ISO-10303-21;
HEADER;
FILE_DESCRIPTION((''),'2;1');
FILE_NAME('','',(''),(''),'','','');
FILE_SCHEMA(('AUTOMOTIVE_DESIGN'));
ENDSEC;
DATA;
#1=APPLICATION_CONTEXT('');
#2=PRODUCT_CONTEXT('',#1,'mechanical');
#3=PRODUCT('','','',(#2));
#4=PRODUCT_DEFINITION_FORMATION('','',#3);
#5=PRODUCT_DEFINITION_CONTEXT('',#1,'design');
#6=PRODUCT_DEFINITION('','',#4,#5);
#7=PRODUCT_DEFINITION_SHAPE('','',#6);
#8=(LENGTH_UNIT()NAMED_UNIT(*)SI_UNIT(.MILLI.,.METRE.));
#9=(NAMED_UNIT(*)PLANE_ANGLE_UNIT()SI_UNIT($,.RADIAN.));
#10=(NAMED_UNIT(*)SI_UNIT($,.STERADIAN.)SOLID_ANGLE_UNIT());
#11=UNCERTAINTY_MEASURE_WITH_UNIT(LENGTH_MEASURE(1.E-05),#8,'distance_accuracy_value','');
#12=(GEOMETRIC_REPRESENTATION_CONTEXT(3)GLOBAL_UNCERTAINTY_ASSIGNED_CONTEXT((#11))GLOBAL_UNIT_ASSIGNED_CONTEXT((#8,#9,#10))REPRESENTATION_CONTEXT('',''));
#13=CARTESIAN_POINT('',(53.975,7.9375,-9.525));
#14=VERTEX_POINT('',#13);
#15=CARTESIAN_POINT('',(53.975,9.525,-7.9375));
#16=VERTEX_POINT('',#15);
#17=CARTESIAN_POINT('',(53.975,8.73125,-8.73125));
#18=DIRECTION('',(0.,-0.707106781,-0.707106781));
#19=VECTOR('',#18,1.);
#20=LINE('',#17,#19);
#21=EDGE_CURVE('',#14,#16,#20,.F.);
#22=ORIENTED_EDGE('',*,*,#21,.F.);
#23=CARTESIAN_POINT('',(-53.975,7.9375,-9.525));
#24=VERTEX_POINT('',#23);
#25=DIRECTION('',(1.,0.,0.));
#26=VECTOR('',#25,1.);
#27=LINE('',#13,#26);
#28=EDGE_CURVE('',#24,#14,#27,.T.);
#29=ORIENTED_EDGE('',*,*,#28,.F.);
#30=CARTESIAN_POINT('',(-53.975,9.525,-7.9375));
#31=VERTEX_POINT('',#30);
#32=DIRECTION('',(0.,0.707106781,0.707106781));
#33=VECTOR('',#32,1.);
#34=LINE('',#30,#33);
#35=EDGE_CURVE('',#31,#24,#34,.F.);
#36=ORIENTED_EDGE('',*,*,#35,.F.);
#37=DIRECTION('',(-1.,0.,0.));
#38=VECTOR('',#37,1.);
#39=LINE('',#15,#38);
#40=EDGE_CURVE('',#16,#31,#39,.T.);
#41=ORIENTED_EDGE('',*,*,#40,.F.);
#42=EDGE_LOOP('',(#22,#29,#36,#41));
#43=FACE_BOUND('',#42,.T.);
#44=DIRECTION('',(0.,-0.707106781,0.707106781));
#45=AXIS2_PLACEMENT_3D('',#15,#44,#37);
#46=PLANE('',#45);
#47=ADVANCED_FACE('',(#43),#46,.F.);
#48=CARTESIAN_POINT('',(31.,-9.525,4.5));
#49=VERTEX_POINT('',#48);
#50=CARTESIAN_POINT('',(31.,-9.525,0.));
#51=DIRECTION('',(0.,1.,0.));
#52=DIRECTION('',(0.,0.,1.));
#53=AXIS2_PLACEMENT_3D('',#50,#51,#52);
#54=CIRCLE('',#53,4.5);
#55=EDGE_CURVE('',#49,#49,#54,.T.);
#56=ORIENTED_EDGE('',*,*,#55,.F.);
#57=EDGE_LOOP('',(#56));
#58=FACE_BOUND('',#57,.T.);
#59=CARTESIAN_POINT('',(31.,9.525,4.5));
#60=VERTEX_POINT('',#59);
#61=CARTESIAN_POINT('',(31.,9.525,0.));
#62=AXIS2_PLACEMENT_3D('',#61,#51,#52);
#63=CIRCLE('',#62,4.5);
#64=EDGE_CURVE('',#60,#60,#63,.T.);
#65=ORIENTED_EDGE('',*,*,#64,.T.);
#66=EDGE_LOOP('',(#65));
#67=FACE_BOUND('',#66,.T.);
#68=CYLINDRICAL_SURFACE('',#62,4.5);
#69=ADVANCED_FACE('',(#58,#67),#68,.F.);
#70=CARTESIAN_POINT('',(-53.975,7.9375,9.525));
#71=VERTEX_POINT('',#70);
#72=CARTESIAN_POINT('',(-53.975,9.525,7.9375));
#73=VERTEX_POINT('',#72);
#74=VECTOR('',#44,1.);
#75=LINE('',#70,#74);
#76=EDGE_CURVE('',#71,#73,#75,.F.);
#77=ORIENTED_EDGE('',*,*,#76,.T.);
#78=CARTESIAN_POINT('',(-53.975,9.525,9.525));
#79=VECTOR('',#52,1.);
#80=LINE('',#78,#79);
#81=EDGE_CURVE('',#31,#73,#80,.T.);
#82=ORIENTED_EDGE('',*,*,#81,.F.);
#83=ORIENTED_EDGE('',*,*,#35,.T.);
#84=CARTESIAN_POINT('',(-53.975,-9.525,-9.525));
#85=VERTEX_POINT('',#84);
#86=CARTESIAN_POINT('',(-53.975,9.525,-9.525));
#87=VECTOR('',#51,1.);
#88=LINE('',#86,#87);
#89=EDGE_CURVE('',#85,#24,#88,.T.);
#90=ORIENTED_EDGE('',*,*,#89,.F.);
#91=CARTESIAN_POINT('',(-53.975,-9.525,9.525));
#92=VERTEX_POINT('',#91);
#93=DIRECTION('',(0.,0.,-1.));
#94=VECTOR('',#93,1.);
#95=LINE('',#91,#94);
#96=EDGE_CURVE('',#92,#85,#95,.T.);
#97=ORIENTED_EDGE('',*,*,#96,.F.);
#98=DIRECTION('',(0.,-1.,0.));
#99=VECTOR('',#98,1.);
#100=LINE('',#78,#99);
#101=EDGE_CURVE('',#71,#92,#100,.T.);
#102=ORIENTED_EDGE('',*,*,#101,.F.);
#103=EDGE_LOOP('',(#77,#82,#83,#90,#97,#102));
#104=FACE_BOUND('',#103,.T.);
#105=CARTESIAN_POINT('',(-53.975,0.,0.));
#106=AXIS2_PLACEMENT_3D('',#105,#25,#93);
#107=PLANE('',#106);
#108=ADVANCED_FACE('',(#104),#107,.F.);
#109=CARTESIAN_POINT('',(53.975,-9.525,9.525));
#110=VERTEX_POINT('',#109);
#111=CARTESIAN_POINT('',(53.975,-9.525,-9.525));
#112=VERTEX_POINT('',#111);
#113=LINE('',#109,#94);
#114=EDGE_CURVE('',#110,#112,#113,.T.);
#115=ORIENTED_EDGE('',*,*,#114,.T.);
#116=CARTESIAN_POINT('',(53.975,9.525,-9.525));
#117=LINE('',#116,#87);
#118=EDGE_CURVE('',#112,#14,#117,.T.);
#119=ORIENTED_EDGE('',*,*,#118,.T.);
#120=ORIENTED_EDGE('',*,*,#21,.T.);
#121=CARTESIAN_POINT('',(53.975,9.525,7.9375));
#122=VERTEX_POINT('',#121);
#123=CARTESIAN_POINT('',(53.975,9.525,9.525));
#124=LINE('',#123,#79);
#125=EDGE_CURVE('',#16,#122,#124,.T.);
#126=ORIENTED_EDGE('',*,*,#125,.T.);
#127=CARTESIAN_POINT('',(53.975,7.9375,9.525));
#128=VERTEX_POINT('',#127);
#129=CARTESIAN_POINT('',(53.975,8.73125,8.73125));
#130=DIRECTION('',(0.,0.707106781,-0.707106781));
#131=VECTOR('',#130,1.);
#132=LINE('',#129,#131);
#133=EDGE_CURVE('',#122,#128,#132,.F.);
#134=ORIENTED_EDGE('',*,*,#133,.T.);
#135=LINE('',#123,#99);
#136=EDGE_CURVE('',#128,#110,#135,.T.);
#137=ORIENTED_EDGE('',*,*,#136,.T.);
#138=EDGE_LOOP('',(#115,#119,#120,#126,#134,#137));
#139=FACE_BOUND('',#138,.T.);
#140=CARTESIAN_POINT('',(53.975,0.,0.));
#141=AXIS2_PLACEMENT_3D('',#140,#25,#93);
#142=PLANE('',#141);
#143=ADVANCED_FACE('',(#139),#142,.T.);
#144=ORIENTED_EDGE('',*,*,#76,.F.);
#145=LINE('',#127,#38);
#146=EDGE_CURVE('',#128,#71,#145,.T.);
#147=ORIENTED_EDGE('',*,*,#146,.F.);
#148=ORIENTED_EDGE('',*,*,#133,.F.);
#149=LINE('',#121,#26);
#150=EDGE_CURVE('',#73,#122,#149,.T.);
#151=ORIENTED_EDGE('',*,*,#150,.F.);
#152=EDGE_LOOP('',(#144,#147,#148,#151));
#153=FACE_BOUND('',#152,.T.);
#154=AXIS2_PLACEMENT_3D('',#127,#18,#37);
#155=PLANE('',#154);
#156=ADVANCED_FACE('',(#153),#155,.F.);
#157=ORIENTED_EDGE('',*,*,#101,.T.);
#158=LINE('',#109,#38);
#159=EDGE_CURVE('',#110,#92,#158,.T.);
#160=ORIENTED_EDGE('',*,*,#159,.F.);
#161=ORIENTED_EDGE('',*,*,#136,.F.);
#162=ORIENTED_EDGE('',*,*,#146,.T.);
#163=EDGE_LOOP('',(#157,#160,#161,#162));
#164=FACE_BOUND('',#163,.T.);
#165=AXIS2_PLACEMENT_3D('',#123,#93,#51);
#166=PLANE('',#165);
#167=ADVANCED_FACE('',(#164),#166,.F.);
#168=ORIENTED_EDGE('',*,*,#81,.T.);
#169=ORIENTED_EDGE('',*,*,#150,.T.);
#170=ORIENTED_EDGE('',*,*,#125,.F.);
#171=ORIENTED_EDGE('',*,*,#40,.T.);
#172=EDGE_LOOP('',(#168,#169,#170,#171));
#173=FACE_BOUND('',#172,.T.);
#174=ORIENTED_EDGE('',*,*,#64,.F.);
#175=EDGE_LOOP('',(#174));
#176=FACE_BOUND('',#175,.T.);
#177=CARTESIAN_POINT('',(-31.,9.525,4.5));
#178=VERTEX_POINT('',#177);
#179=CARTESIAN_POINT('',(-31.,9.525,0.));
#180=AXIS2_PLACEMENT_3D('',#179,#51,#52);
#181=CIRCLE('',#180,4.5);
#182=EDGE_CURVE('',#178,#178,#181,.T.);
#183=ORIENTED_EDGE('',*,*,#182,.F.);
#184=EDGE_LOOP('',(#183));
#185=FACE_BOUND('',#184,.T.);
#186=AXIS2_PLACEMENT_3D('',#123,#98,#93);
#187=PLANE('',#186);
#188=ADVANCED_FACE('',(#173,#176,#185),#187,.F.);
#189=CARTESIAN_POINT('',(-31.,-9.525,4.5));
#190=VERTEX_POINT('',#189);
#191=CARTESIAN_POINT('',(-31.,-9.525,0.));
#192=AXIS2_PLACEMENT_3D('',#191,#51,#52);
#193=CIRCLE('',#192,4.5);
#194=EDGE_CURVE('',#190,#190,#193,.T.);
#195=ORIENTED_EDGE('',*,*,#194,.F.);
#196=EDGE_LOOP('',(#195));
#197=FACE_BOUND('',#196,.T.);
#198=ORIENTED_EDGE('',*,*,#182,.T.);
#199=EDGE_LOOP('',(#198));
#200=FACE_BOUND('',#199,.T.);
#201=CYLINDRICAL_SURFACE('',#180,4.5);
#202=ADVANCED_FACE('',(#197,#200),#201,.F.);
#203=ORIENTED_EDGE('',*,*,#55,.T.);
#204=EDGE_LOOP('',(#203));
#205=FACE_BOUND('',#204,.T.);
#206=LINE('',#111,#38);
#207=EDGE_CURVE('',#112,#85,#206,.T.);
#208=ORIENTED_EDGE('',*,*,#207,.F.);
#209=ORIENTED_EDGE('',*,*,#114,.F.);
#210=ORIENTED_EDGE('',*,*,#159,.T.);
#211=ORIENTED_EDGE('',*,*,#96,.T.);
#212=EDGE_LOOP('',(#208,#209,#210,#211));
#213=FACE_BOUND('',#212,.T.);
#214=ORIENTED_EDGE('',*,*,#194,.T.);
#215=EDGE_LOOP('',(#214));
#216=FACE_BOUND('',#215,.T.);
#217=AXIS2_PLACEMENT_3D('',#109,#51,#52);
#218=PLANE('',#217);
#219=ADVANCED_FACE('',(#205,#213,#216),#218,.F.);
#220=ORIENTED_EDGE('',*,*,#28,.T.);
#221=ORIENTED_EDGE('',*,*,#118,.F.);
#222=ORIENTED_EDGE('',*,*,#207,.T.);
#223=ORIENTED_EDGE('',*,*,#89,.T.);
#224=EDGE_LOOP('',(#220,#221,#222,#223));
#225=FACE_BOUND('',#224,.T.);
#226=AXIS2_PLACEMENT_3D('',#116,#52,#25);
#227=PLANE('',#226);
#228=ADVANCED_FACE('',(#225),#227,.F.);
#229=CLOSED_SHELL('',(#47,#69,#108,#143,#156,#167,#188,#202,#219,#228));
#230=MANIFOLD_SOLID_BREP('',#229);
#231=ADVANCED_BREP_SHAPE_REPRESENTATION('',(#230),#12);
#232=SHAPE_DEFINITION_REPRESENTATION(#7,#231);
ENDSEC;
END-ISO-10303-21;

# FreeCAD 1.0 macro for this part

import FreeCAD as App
import Part
import Sketcher

V = App.Vector
Q = App.Units.Quantity


def edges_at(feature, points):
    """Names of the edges that pass closest to the given points."""
    edges = feature.Shape.Edges
    near = lambda p: min(range(len(edges)), key=lambda i: edges[i].distToShape(Part.Vertex(*p))[0])
    return sorted({f"Edge{near(p) + 1}" for p in points})


def add_polygon(sketch, points):
    """Adds a closed chain of lines whose ends are joined by coincident constraints."""
    first, n = sketch.GeometryCount, len(points)
    for a, b in zip(points, points[1:] + points[:1]):
        sketch.addGeometry(Part.LineSegment(App.Vector(*a, 0), App.Vector(*b, 0)), False)
    for i in range(n):
        sketch.addConstraint(Sketcher.Constraint("Coincident", first + i, 2, first + (i + 1) % n, 1))

doc = App.newDocument("Part")
body = doc.addObject("PartDesign::Body", "Body")

# Sketch on YZ plane
sketch1 = body.newObject("Sketcher::SketchObject", "Sketch")
sketch1.AttachmentSupport = (doc.getObject("YZ_Plane"), [""])
sketch1.MapMode = "FlatFace"
add_polygon(sketch1, [(9.525, 9.525), (-9.525, 9.525), (-9.525, -9.525), (9.525, -9.525)])  # lines 0-3
sketch1.addConstraint([
    Sketcher.Constraint("Horizontal", 0),
    Sketcher.Constraint("Vertical", 1),
    Sketcher.Constraint("Horizontal", 2),
    Sketcher.Constraint("Vertical", 3),
    Sketcher.Constraint("Symmetric", 0, 2, 2, 2, -1, 1),
    Sketcher.Constraint("Equal", 2, 1),
    Sketcher.Constraint("DistanceX", 0, 2, 0, 1, Q("0.75 in")),
])
pad1 = body.newObject("PartDesign::Pad", "Pad")
pad1.Profile = sketch1
pad1.Length = Q("4.25 in")
pad1.Midplane = True

# Sketch on XZ plane
sketch2 = body.newObject("Sketcher::SketchObject", "Sketch001")
sketch2.AttachmentSupport = (doc.getObject("XZ_Plane"), [""])
sketch2.MapMode = "FlatFace"
sketch2.AttachmentOffset = App.Placement(V(0, 0, -0.375 * 25.4), App.Rotation())
sketch2.addGeometry([
    Part.Circle(V(-31, 0, 0), V(0, 0, 1), 4.5),
    Part.Circle(V(31, 0, 0), V(0, 0, 1), 4.5),
], False)
sketch2.addConstraint([
    Sketcher.Constraint("Equal", 0, 1),
    Sketcher.Constraint("Symmetric", 0, 3, 1, 3, -1, 1),
    Sketcher.Constraint("PointOnObject", 0, 3, -1),
    Sketcher.Constraint("Diameter", 0, Q("9 mm")),
    Sketcher.Constraint("DistanceX", 0, 3, -1, 1, Q("31 mm")),
])
doc.recompute()
hole = body.newObject("PartDesign::Hole", "Hole")
hole.Profile = sketch2
hole.ThreadType = "None"
hole.Diameter = 9
hole.DepthType = "ThroughAll"
hole.Reversed = True
doc.recompute()

chamfer = body.newObject("PartDesign::Chamfer", "Chamfer")
chamfer.Base = (hole, edges_at(hole, [(0, 9.525, 9.525), (0, 9.525, -9.525)]))
chamfer.Size = Q("0.0625 in")

doc.recompute()
